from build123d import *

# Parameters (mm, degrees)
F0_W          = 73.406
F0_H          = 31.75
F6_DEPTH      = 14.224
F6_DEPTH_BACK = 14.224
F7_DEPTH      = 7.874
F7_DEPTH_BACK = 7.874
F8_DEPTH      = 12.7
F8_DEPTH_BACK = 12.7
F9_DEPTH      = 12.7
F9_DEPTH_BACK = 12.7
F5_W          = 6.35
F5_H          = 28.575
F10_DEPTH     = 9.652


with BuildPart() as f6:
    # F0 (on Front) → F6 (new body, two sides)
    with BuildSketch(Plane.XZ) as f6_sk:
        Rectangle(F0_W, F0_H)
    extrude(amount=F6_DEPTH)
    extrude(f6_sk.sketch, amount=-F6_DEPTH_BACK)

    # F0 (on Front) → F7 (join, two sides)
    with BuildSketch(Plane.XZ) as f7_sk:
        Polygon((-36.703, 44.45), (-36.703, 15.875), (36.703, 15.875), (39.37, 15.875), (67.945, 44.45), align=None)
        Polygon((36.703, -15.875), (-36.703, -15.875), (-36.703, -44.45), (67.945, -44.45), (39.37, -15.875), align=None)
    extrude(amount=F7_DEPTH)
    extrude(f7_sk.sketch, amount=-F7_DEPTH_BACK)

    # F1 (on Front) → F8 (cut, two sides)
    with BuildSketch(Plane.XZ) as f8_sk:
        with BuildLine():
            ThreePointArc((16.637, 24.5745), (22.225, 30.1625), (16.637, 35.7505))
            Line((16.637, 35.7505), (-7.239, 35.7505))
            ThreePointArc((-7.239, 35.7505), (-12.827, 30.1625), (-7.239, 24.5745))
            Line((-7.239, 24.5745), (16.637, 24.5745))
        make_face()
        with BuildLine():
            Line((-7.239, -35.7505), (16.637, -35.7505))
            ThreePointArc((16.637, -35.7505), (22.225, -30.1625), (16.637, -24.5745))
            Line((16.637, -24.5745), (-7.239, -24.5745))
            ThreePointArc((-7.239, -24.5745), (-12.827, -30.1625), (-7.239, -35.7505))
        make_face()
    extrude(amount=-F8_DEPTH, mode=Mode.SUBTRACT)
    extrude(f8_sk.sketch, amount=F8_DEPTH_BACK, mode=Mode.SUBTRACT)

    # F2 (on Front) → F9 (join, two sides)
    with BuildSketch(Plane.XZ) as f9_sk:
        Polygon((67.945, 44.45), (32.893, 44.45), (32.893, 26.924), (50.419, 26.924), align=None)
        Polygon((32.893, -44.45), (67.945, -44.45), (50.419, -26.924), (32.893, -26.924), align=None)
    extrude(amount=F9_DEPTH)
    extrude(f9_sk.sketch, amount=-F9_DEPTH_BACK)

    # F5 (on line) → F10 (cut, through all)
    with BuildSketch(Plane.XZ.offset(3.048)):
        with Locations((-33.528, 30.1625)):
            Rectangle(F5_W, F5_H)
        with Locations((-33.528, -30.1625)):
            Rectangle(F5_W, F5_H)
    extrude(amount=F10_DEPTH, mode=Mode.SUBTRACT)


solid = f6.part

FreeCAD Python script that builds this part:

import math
import FreeCAD as App
import Part
import Sketcher
Q = App.Units.Quantity

doc = App.newDocument("Part")
body = doc.addObject("PartDesign::Body", "Body")

# Sketch on XZ plane
sketch1 = doc.addObject("Sketcher::SketchObject", "Sketch")
body.addObject(sketch1)
sketch1.AttachmentSupport = (doc.XZ_Plane, [""])
sketch1.MapMode = "FlatFace"
sketch1.addGeometry([
    Part.LineSegment(App.Vector(-37, 16, 0), App.Vector(-37, -16, 0)),
    Part.LineSegment(App.Vector(-37, -16, 0), App.Vector(37, -16, 0)),
    Part.LineSegment(App.Vector(37, -16, 0), App.Vector(37, 16, 0)),
    Part.LineSegment(App.Vector(37, 16, 0), App.Vector(-37, 16, 0)),
], False)
sketch1.addConstraint([
    Sketcher.Constraint("Coincident", 0, 2, 1, 1),
    Sketcher.Constraint("Coincident", 1, 2, 2, 1),
    Sketcher.Constraint("Coincident", 2, 2, 3, 1),
    Sketcher.Constraint("Coincident", 3, 2, 0, 1),
    Sketcher.Constraint("Vertical", 0),
    Sketcher.Constraint("Horizontal", 1),
    Sketcher.Constraint("Vertical", 2),
    Sketcher.Constraint("Horizontal", 3),
    Sketcher.Constraint("Symmetric", 0, 2, 2, 2, -1, 1),
    Sketcher.Constraint("DistanceX", 1, 1, 1, 2, Q("2.89 in")),
    Sketcher.Constraint("DistanceY", 0, 2, 0, 1, Q("1.25 in")),
])
pad1 = doc.addObject("PartDesign::Pad", "Pad")
body.addObject(pad1)
pad1.Profile = sketch1
pad1.Type = "TwoLengths"
pad1.Length = Q("0.56 in")
pad1.Length2 = Q("0.56 in")

# Sketch on XZ plane
sketch2 = doc.addObject("Sketcher::SketchObject", "Sketch001")
body.addObject(sketch2)
sketch2.AttachmentSupport = (doc.XZ_Plane, [""])
sketch2.MapMode = "FlatFace"
sketch2.addGeometry([
    Part.LineSegment(App.Vector(-37, 44, 0), App.Vector(-37, 16, 0)),  # 0
    Part.LineSegment(App.Vector(-37, 16, 0), App.Vector(39, 16, 0)),  # 1
    Part.LineSegment(App.Vector(39, 16, 0), App.Vector(68, 44, 0)),  # 2
    Part.LineSegment(App.Vector(68, 44, 0), App.Vector(-37, 44, 0)),  # 3
    Part.LineSegment(App.Vector(-37, -16, 0), App.Vector(-37, -44, 0)),  # 4
    Part.LineSegment(App.Vector(-37, -44, 0), App.Vector(68, -44, 0)),  # 5
    Part.LineSegment(App.Vector(68, -44, 0), App.Vector(39, -16, 0)),  # 6
    Part.LineSegment(App.Vector(39, -16, 0), App.Vector(-37, -16, 0)),  # 7
], False)
sketch2.addConstraint([
    Sketcher.Constraint("Coincident", 0, 2, 1, 1),
    Sketcher.Constraint("Coincident", 1, 2, 2, 1),
    Sketcher.Constraint("Coincident", 2, 2, 3, 1),
    Sketcher.Constraint("Coincident", 3, 2, 0, 1),
    Sketcher.Constraint("Coincident", 4, 2, 5, 1),
    Sketcher.Constraint("Coincident", 5, 2, 6, 1),
    Sketcher.Constraint("Coincident", 6, 2, 7, 1),
    Sketcher.Constraint("Coincident", 7, 2, 4, 1),
    Sketcher.Constraint("Vertical", 0),
    Sketcher.Constraint("Horizontal", 1),
    Sketcher.Constraint("Horizontal", 3),
    Sketcher.Constraint("Vertical", 4),
    Sketcher.Constraint("Horizontal", 5),
    Sketcher.Constraint("Horizontal", 7),
    Sketcher.Constraint("Symmetric", 3, 2, 4, 2, -1),
    Sketcher.Constraint("Symmetric", 1, 2, 6, 2, -1),
    Sketcher.Constraint("Perpendicular", 2, 6),
    Sketcher.Constraint("Vertical", 2, 2, 5, 2),
    Sketcher.Constraint("DistanceX", 3, 2, 3, 1, Q("4.12 in")),
    Sketcher.Constraint("DistanceY", 4, 2, 3, 2, Q("3.5 in")),
    Sketcher.Constraint("DistanceX", 1, 1, 1, 2, Q("2.995 in")),
    Sketcher.Constraint("DistanceX", -1, 1, 1, 2, Q("1.55 in")),
])
pad2 = doc.addObject("PartDesign::Pad", "Pad001")
body.addObject(pad2)
pad2.Profile = sketch2
pad2.Type = "TwoLengths"
pad2.Length = Q("0.31 in")
pad2.Length2 = Q("0.31 in")

# Sketch on XZ plane
sketch3 = doc.addObject("Sketcher::SketchObject", "Sketch002")
body.addObject(sketch3)
sketch3.AttachmentSupport = (doc.XZ_Plane, [""])
sketch3.MapMode = "FlatFace"
sketch3.addGeometry([
    Part.ArcOfCircle(Part.Circle(App.Vector(17, 30, 0), App.Vector(0, 0, 1), 6), math.radians(-90), math.radians(90)),  # 0
    Part.LineSegment(App.Vector(17, 36, 0), App.Vector(-7, 36, 0)),  # 1
    Part.ArcOfCircle(Part.Circle(App.Vector(-7, 30, 0), App.Vector(0, 0, 1), 6), math.radians(90), math.radians(270)),  # 2
    Part.LineSegment(App.Vector(-7, 25, 0), App.Vector(17, 25, 0)),  # 3
    Part.LineSegment(App.Vector(-7, -36, 0), App.Vector(17, -36, 0)),  # 4
    Part.ArcOfCircle(Part.Circle(App.Vector(17, -30, 0), App.Vector(0, 0, 1), 6), math.radians(-90), math.radians(90)),  # 5
    Part.LineSegment(App.Vector(17, -25, 0), App.Vector(-7, -25, 0)),  # 6
    Part.ArcOfCircle(Part.Circle(App.Vector(-7, -30, 0), App.Vector(0, 0, 1), 6), math.radians(90), math.radians(270)),  # 7
], False)
sketch3.addConstraint([
    Sketcher.Constraint("Tangent", 0, 2, 1, 1),
    Sketcher.Constraint("Tangent", 1, 2, 2, 1),
    Sketcher.Constraint("Tangent", 2, 2, 3, 1),
    Sketcher.Constraint("Tangent", 3, 2, 0, 1),
    Sketcher.Constraint("Tangent", 4, 2, 5, 1),
    Sketcher.Constraint("Tangent", 5, 2, 6, 1),
    Sketcher.Constraint("Tangent", 6, 2, 7, 1),
    Sketcher.Constraint("Tangent", 7, 2, 4, 1),
    Sketcher.Constraint("Horizontal", 1),
    Sketcher.Constraint("Horizontal", 3),
    Sketcher.Constraint("Horizontal", 4),
    Sketcher.Constraint("Horizontal", 6),
    Sketcher.Constraint("Equal", 2, 5),
    Sketcher.Constraint("Symmetric", 0, 3, 5, 3, -1),
    Sketcher.Constraint("Vertical", 2, 3, 7, 3),
    Sketcher.Constraint("Radius", 0, Q("0.22 in")),
    Sketcher.Constraint("DistanceX", 1, 2, 1, 1, Q("0.94 in")),
    Sketcher.Constraint("DistanceX", -1, 1, 0, 3, Q("0.655 in")),
    Sketcher.Constraint("DistanceY", -1, 1, 0, 3, Q("1.1875 in")),
])
pocket1 = doc.addObject("PartDesign::Pocket", "Pocket")
body.addObject(pocket1)
pocket1.Profile = sketch3
pocket1.Type = "ThroughAll"
pocket1.Midplane = True

# Sketch on XZ plane
sketch4 = doc.addObject("Sketcher::SketchObject", "Sketch003")
body.addObject(sketch4)
sketch4.AttachmentSupport = (doc.XZ_Plane, [""])
sketch4.MapMode = "FlatFace"
sketch4.addGeometry([
    Part.LineSegment(App.Vector(68, 44, 0), App.Vector(33, 44, 0)),  # 0
    Part.LineSegment(App.Vector(33, 44, 0), App.Vector(33, 27, 0)),  # 1
    Part.LineSegment(App.Vector(33, 27, 0), App.Vector(50, 27, 0)),  # 2
    Part.LineSegment(App.Vector(50, 27, 0), App.Vector(68, 44, 0)),  # 3
    Part.LineSegment(App.Vector(33, -44, 0), App.Vector(68, -44, 0)),  # 4
    Part.LineSegment(App.Vector(68, -44, 0), App.Vector(50, -27, 0)),  # 5
    Part.LineSegment(App.Vector(50, -27, 0), App.Vector(33, -27, 0)),  # 6
    Part.LineSegment(App.Vector(33, -27, 0), App.Vector(33, -44, 0)),  # 7
], False)
sketch4.addConstraint([
    Sketcher.Constraint("Coincident", 0, 2, 1, 1),
    Sketcher.Constraint("Coincident", 1, 2, 2, 1),
    Sketcher.Constraint("Coincident", 2, 2, 3, 1),
    Sketcher.Constraint("Coincident", 3, 2, 0, 1),
    Sketcher.Constraint("Coincident", 4, 2, 5, 1),
    Sketcher.Constraint("Coincident", 5, 2, 6, 1),
    Sketcher.Constraint("Coincident", 6, 2, 7, 1),
    Sketcher.Constraint("Coincident", 7, 2, 4, 1),
    Sketcher.Constraint("Horizontal", 0),
    Sketcher.Constraint("Vertical", 1),
    Sketcher.Constraint("Horizontal", 2),
    Sketcher.Constraint("Horizontal", 4),
    Sketcher.Constraint("Horizontal", 6),
    Sketcher.Constraint("Vertical", 7),
    Sketcher.Constraint("Symmetric", 3, 2, 4, 2, -1),
    Sketcher.Constraint("Symmetric", 2, 2, 5, 2, -1),
    Sketcher.Constraint("Perpendicular", 3, 5),
    Sketcher.Constraint("Vertical", 1, 2, 6, 2),
    Sketcher.Constraint("Equal", 6, 1),
    Sketcher.Constraint("DistanceX", 0, 2, 0, 1, Q("1.38 in")),
    Sketcher.Constraint("DistanceY", 4, 2, 3, 2, Q("3.5 in")),
    Sketcher.Constraint("DistanceX", -1, 1, 0, 2, Q("1.295 in")),
])
pad3 = doc.addObject("PartDesign::Pad", "Pad002")
body.addObject(pad3)
pad3.Profile = sketch4
pad3.Type = "TwoLengths"
pad3.Length = Q("0.5 in")
pad3.Length2 = Q("0.5 in")

# Sketch on XZ plane
sketch5 = doc.addObject("Sketcher::SketchObject", "Sketch004")
body.addObject(sketch5)
sketch5.AttachmentSupport = (doc.XZ_Plane, [""])
sketch5.MapMode = "FlatFace"
sketch5.AttachmentOffset = App.Placement(App.Vector(0, 0, 0.12 * 25.4), App.Rotation())
sketch5.addGeometry([
    Part.LineSegment(App.Vector(-37, 44, 0), App.Vector(-37, 16, 0)),  # 0
    Part.LineSegment(App.Vector(-37, 16, 0), App.Vector(-30, 16, 0)),  # 1
    Part.LineSegment(App.Vector(-30, 16, 0), App.Vector(-30, 44, 0)),  # 2
    Part.LineSegment(App.Vector(-30, 44, 0), App.Vector(-37, 44, 0)),  # 3
    Part.LineSegment(App.Vector(-37, -16, 0), App.Vector(-37, -44, 0)),  # 4
    Part.LineSegment(App.Vector(-37, -44, 0), App.Vector(-30, -44, 0)),  # 5
    Part.LineSegment(App.Vector(-30, -44, 0), App.Vector(-30, -16, 0)),  # 6
    Part.LineSegment(App.Vector(-30, -16, 0), App.Vector(-37, -16, 0)),  # 7
], False)
sketch5.addConstraint([
    Sketcher.Constraint("Coincident", 0, 2, 1, 1),
    Sketcher.Constraint("Coincident", 1, 2, 2, 1),
    Sketcher.Constraint("Coincident", 2, 2, 3, 1),
    Sketcher.Constraint("Coincident", 3, 2, 0, 1),
    Sketcher.Constraint("Coincident", 4, 2, 5, 1),
    Sketcher.Constraint("Coincident", 5, 2, 6, 1),
    Sketcher.Constraint("Coincident", 6, 2, 7, 1),
    Sketcher.Constraint("Coincident", 7, 2, 4, 1),
    Sketcher.Constraint("Vertical", 0),
    Sketcher.Constraint("Horizontal", 1),
    Sketcher.Constraint("Vertical", 2),
    Sketcher.Constraint("Horizontal", 3),
    Sketcher.Constraint("Vertical", 4),
    Sketcher.Constraint("Horizontal", 5),
    Sketcher.Constraint("Vertical", 6),
    Sketcher.Constraint("Horizontal", 7),
    Sketcher.Constraint("Symmetric", 3, 2, 4, 2, -1),
    Sketcher.Constraint("Symmetric", 1, 2, 6, 2, -1),
    Sketcher.Constraint("DistanceX", 1, 1, 1, 2, Q("0.25 in")),
    Sketcher.Constraint("DistanceY", 4, 2, 3, 2, Q("3.5 in")),
    Sketcher.Constraint("DistanceY", 0, 2, 0, 1, Q("1.125 in")),
    Sketcher.Constraint("DistanceX", 0, 2, -1, 1, Q("1.445 in")),
])
pocket2 = doc.addObject("PartDesign::Pocket", "Pocket001")
body.addObject(pocket2)
pocket2.Profile = sketch5
pocket2.Type = "ThroughAll"
pocket2.Reversed = True

doc.recompute()
